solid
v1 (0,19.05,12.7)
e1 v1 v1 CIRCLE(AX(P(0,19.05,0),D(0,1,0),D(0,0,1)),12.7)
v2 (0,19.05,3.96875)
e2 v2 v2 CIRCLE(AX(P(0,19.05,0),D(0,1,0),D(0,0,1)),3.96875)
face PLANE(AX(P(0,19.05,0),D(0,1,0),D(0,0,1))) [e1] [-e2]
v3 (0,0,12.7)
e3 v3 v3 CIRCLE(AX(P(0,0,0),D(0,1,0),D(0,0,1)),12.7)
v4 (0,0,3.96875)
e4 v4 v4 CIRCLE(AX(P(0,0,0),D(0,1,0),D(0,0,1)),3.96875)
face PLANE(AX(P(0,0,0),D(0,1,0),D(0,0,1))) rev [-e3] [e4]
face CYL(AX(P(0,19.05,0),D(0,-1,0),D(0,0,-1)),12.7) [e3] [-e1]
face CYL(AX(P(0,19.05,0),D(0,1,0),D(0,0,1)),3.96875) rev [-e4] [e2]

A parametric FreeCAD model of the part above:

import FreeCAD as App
import Part
import Sketcher
Q = App.Units.Quantity

doc = App.newDocument("Part")
params = doc.addObject("Spreadsheet::Sheet", "Params")
for row, (alias, value) in enumerate([
    ("sketch1_diameter", "1 in"),
    ("pad1_length", "0.75 in"),
    ("sketch2_diameter", "0.3125 in"),
    ("hole_diameter", "0.3125 in"),
], start=1):
    params.set(f"A{row}", alias)
    params.set(f"B{row}", "=" + value)
    params.setAlias(f"B{row}", alias)

body = doc.addObject("PartDesign::Body", "Body")

sketch1 = doc.addObject("Sketcher::SketchObject", "Sketch")
body.addObject(sketch1)
sketch1.AttachmentSupport = (doc.XZ_Plane, [""])
sketch1.MapMode = "FlatFace"
sketch1.addGeometry(Part.Circle(App.Vector(0, 0, 0), App.Vector(0, 0, 1), 12.7), False)
sketch1.addConstraint([
    Sketcher.Constraint("Coincident", 0, 3, -1, 1),
    Sketcher.Constraint("Diameter", 0, Q("1 in")),
])
sketch1.setExpression("Constraints[1]", "Params.sketch1_diameter")
pad1 = doc.addObject("PartDesign::Pad", "Pad")
body.addObject(pad1)
pad1.Profile = sketch1
pad1.setExpression("Length", "Params.pad1_length")
pad1.Reversed = True

sketch2 = doc.addObject("Sketcher::SketchObject", "Sketch001")
body.addObject(sketch2)
sketch2.AttachmentSupport = (doc.XZ_Plane, [""])
sketch2.MapMode = "FlatFace"
sketch2.AttachmentOffset = App.Placement(App.Vector(0, 0, -0.75 * 25.4), App.Rotation())
sketch2.addGeometry(Part.Circle(App.Vector(0, 0, 0), App.Vector(0, 0, 1), 3.96875), False)
sketch2.addConstraint([
    Sketcher.Constraint("Coincident", 0, 3, -1, 1),
    Sketcher.Constraint("Diameter", 0, Q("0.3125 in")),
])
sketch2.setExpression("Constraints[1]", "Params.sketch2_diameter")
doc.recompute()
hole = doc.addObject("PartDesign::Hole", "Hole")
body.addObject(hole)
hole.Profile = sketch2
hole.ThreadType = "None"
hole.setExpression("Diameter", "Params.hole_diameter")
hole.DepthType = "ThroughAll"
hole.Reversed = True

doc.recompute()
